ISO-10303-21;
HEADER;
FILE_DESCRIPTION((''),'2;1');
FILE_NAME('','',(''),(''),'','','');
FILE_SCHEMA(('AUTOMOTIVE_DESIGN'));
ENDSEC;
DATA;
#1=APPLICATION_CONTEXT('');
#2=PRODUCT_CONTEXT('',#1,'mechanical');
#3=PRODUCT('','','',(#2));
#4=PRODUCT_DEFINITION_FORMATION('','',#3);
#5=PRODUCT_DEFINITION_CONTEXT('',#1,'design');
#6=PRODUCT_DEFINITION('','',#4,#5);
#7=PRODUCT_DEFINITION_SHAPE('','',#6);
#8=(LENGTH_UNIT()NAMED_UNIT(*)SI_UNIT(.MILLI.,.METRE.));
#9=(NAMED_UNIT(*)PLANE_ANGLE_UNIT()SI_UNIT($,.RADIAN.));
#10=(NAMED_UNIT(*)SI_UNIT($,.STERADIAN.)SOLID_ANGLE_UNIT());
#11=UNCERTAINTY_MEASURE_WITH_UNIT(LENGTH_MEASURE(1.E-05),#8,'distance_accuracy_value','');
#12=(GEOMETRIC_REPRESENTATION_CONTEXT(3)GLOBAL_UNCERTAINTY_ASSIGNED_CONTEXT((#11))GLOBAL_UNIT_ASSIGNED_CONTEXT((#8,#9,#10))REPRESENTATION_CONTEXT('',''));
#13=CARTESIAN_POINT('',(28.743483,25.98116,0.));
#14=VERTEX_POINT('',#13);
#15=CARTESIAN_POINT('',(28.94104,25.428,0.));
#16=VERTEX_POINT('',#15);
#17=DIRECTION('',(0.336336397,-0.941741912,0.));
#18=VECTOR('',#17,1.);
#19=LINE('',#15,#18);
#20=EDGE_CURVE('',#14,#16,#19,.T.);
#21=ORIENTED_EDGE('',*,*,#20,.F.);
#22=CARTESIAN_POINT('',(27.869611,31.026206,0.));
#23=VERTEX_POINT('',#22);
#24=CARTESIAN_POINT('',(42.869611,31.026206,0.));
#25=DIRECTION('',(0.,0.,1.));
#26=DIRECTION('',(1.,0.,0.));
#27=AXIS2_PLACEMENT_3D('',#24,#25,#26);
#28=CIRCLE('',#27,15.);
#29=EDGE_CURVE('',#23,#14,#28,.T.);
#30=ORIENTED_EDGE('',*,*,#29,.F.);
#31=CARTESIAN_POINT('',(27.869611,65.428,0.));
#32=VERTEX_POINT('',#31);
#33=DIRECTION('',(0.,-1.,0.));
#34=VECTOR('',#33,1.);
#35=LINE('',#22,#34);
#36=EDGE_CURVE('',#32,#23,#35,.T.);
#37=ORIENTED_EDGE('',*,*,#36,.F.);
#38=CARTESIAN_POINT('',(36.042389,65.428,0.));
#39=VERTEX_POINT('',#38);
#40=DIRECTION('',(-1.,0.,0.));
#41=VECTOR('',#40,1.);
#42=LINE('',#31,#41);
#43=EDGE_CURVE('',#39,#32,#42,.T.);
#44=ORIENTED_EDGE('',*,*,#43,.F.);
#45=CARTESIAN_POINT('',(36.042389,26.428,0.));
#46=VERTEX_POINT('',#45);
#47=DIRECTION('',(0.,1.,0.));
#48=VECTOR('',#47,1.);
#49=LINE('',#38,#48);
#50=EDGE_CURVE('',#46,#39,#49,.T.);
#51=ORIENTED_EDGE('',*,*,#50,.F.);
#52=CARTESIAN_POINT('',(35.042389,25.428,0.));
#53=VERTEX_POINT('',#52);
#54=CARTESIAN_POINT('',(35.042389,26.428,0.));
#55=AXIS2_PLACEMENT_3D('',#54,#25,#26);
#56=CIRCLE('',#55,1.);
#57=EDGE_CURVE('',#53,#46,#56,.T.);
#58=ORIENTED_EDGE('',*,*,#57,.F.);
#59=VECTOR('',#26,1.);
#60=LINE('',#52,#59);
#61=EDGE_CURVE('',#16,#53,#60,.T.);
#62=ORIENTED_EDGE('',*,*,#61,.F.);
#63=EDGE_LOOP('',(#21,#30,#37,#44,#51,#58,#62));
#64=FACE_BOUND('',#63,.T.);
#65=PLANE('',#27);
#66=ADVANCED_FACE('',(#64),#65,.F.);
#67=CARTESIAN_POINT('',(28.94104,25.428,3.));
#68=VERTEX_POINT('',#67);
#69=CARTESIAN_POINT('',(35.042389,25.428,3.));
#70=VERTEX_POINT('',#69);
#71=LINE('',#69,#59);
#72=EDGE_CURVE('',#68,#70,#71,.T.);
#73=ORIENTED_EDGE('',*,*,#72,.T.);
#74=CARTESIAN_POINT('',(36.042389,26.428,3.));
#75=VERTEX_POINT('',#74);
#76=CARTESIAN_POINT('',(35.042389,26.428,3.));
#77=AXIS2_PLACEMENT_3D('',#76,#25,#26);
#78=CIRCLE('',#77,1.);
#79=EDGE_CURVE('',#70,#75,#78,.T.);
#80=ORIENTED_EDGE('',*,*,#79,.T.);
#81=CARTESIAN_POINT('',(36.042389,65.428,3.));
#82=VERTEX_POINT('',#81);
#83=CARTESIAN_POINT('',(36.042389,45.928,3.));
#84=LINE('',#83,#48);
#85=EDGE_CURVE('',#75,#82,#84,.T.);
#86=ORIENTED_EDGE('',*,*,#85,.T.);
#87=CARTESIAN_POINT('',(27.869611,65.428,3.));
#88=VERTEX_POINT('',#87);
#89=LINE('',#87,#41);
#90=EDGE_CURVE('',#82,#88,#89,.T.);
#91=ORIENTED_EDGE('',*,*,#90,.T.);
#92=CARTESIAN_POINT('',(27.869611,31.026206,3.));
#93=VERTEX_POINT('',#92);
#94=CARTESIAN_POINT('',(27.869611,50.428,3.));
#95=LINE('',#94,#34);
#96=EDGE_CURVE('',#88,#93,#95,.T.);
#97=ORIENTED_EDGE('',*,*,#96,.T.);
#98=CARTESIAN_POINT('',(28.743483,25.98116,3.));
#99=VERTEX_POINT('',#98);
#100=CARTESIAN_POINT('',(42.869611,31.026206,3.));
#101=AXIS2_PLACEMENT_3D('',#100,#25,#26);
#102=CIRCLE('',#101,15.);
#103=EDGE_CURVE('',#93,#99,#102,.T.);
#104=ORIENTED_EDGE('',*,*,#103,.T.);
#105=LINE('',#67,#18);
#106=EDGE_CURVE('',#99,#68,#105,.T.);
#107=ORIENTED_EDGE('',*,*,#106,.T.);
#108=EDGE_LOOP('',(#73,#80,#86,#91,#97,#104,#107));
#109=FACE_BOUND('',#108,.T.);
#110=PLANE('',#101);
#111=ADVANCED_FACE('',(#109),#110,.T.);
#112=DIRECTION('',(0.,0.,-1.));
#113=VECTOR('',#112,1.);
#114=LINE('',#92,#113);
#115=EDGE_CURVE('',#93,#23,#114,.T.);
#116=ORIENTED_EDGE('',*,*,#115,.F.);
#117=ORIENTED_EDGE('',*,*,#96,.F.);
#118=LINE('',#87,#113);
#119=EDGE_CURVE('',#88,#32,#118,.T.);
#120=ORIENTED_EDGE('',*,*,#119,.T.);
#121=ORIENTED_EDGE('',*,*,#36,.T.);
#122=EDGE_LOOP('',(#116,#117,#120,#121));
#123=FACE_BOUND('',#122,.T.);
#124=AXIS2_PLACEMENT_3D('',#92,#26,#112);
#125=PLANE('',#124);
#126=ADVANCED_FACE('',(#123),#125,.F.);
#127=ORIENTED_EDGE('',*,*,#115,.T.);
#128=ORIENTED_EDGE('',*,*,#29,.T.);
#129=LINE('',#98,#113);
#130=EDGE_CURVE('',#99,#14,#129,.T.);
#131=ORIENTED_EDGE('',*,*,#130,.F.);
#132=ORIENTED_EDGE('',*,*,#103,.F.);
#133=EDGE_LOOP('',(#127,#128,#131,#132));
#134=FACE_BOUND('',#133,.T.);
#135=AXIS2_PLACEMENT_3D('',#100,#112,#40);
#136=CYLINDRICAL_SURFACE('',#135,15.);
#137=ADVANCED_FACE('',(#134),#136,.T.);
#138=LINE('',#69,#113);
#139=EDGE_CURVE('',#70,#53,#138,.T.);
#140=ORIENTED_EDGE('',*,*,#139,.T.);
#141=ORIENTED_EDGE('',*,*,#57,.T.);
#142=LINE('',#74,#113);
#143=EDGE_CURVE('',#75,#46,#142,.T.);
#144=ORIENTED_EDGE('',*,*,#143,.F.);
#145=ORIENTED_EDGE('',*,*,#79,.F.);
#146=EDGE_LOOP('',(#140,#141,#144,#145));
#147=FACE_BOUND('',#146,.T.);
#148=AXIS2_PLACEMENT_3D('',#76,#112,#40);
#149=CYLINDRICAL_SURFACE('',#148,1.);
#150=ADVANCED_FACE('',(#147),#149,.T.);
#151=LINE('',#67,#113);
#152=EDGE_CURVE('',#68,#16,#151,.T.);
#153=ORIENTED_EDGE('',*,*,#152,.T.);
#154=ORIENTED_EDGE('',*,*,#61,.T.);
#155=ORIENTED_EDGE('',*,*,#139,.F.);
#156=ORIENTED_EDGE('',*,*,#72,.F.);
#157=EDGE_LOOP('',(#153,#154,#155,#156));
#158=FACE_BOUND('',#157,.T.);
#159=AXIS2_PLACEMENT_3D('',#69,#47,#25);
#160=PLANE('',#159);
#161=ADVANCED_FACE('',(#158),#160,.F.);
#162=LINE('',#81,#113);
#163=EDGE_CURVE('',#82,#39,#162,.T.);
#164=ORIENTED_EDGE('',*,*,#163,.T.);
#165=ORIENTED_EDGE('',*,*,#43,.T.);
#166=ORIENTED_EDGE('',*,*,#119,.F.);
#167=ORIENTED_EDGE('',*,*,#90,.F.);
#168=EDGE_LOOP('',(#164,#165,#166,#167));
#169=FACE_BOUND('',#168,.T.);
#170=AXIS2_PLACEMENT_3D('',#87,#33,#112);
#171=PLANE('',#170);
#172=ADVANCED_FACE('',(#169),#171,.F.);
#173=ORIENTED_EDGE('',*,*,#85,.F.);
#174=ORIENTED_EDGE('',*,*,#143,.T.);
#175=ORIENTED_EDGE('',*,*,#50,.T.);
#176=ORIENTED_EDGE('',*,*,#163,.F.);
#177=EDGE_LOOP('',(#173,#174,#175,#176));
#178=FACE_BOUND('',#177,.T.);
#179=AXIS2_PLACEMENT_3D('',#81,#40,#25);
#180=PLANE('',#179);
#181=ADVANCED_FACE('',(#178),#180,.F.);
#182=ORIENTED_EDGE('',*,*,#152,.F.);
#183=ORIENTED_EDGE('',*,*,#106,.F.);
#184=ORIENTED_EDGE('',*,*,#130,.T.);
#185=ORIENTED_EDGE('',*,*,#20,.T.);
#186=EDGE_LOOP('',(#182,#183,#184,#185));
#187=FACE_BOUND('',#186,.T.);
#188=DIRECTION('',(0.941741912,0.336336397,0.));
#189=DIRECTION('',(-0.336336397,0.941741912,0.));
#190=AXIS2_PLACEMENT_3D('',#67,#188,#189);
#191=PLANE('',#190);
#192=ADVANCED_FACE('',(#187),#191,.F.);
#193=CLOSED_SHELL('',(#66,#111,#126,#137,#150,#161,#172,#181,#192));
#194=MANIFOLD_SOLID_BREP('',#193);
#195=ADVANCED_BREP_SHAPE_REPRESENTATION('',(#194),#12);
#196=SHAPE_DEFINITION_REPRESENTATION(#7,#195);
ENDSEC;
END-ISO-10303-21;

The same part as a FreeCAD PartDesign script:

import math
import FreeCAD as App
import Part
import Sketcher
from FreeCAD import Vector
Q = App.Units.Quantity

doc = App.newDocument("Part")
body = doc.addObject("PartDesign::Body", "Body")

# Sketch on XY plane
sketch1 = body.newObject("Sketcher::SketchObject", "Sketch")
sketch1.AttachmentSupport = (doc.getObject("XY_Plane"), [""])
sketch1.MapMode = "FlatFace"
sketch1.addGeometry(Part.LineSegment(Vector(27.9, 65.4, 0), Vector(27.9, 31, 0)), False)
sketch1.addGeometry(Part.ArcOfCircle(Part.Circle(Vector(42.9, 31, 0), Vector(0, 0, 1), 15), math.radians(180), math.radians(199.65)), False)
sketch1.addGeometry(Part.LineSegment(Vector(28.7, 26, 0), Vector(28.9, 25.4, 0)), False)
sketch1.addGeometry(Part.LineSegment(Vector(28.9, 25.4, 0), Vector(35, 25.4, 0)), False)
sketch1.addGeometry(Part.ArcOfCircle(Part.Circle(Vector(35, 26.4, 0), Vector(0, 0, 1), 1), math.radians(-90), math.radians(0)), False)
sketch1.addGeometry(Part.LineSegment(Vector(36, 26.4, 0), Vector(36, 65.4, 0)), False)
sketch1.addGeometry(Part.LineSegment(Vector(36, 65.4, 0), Vector(27.9, 65.4, 0)), False)
sketch1.addConstraint(Sketcher.Constraint("Tangent", 0, 2, 1, 1))
sketch1.addConstraint(Sketcher.Constraint("Tangent", 1, 2, 2, 1))
sketch1.addConstraint(Sketcher.Constraint("Coincident", 2, 2, 3, 1))
sketch1.addConstraint(Sketcher.Constraint("Tangent", 3, 2, 4, 1))
sketch1.addConstraint(Sketcher.Constraint("Tangent", 4, 2, 5, 1))
sketch1.addConstraint(Sketcher.Constraint("Coincident", 5, 2, 6, 1))
sketch1.addConstraint(Sketcher.Constraint("Coincident", 6, 2, 0, 1))
sketch1.addConstraint(Sketcher.Constraint("Vertical", 0))
sketch1.addConstraint(Sketcher.Constraint("Horizontal", 3))
sketch1.addConstraint(Sketcher.Constraint("Vertical", 5))
sketch1.addConstraint(Sketcher.Constraint("Horizontal", 6))
sketch1.addConstraint(Sketcher.Constraint("Radius", 1, Q("15 mm")))
sketch1.addConstraint(Sketcher.Constraint("Radius", 4, Q("1 mm")))
sketch1.addConstraint(Sketcher.Constraint("DistanceY", 5, 1, 5, 2, Q("39 mm")))
sketch1.addConstraint(Sketcher.Constraint("DistanceY", -1, 1, 4, 3, Q("26.428 mm")))
sketch1.addConstraint(Sketcher.Constraint("DistanceX", 3, 1, 3, 2, Q("6.101349 mm")))
sketch1.addConstraint(Sketcher.Constraint("Distance", 2, Q("0.58738 mm")))
sketch1.addConstraint(Sketcher.Constraint("DistanceX", 6, 2, 6, 1, Q("8.172777 mm")))
sketch1.addConstraint(Sketcher.Constraint("DistanceX", -1, 1, 1, 3, Q("42.869611 mm")))
pad1 = body.newObject("PartDesign::Pad", "Pad")
pad1.Profile = sketch1
pad1.Length = 3

doc.recompute()
